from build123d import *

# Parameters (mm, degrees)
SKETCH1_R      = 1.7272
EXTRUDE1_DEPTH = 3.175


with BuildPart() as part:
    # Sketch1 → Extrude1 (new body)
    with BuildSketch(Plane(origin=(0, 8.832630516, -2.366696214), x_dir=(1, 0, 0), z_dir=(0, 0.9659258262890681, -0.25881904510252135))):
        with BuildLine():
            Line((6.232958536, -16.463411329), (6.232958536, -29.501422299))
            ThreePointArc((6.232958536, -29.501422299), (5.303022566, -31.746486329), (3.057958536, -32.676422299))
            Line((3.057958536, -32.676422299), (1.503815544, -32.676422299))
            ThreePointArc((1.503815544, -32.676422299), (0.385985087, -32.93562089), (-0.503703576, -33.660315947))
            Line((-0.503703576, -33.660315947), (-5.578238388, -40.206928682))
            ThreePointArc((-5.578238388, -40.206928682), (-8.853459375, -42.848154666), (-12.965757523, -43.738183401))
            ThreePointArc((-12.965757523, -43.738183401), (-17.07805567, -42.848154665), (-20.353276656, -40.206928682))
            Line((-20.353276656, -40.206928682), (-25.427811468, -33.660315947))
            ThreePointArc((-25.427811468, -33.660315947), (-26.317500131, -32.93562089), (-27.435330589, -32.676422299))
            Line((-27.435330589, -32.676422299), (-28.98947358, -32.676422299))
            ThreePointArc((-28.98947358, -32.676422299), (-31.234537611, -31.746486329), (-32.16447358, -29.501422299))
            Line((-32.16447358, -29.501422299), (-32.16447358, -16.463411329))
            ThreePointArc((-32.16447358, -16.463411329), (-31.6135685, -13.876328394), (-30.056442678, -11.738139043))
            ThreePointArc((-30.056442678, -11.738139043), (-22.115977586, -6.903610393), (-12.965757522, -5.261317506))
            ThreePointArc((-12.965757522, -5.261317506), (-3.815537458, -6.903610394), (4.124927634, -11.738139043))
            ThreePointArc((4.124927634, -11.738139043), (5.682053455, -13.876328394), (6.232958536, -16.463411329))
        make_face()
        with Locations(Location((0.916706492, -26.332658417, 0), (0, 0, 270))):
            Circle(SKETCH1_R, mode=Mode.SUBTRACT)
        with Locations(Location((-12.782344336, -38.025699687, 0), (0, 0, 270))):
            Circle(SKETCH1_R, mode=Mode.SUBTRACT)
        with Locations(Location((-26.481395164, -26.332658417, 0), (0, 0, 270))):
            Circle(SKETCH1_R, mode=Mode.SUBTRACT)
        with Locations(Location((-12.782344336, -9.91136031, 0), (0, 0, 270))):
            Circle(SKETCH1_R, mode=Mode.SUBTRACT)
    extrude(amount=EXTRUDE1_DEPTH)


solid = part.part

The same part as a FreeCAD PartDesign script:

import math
import FreeCAD as App
import Part
import Sketcher
from FreeCAD import Vector
Q = App.Units.Quantity

doc = App.newDocument("Part")
body = doc.addObject("PartDesign::Body", "Body")

# Sketch on an angled plane
sketch1 = doc.addObject("Sketcher::SketchObject", "Sketch")
body.addObject(sketch1)
sketch1.Placement = App.Placement(Vector(0, 8.832631, -2.366696), App.Rotation(Vector(1, 0, 0), Vector(0, -0.258819045, -0.965925826), Vector(0, 0.965925826, -0.258819045), "ZXY"))
sketch1.addGeometry(Part.LineSegment(Vector(6.232959, -29.501422, 0), Vector(6.232959, -16.463411, 0)), False)
sketch1.addGeometry(Part.ArcOfCircle(Part.Circle(Vector(-0.117041, -16.463411, 0), Vector(0, 0, 1), 6.35), math.radians(0), math.radians(48.085059)), False)
sketch1.addGeometry(Part.ArcOfCircle(Part.Circle(Vector(-12.786925, -30.576822, 0), Vector(0, 0, 1), 25.316136), math.radians(48.085059), math.radians(90.404739)), False)
sketch1.addGeometry(Part.ArcOfCircle(Part.Circle(Vector(-13.14459, -30.576822, 0), Vector(0, 0, 1), 25.316136), math.radians(89.595261), math.radians(131.914941)), False)
sketch1.addGeometry(Part.ArcOfCircle(Part.Circle(Vector(-25.814474, -16.463411, 0), Vector(0, 0, 1), 6.35), math.radians(131.914941), math.radians(180)), False)
sketch1.addGeometry(Part.LineSegment(Vector(-32.164474, -16.463411, 0), Vector(-32.164474, -29.501422, 0)), False)
sketch1.addGeometry(Part.ArcOfCircle(Part.Circle(Vector(-28.989474, -29.501422, 0), Vector(0, 0, 1), 3.175), math.radians(180), math.radians(270)), False)
sketch1.addGeometry(Part.LineSegment(Vector(-28.989474, -32.676422, 0), Vector(-27.435331, -32.676422, 0)), False)
sketch1.addGeometry(Part.ArcOfCircle(Part.Circle(Vector(-27.435331, -35.216422, 0), Vector(0, 0, 1), 2.54), math.radians(37.780659), math.radians(90)), False)
sketch1.addGeometry(Part.LineSegment(Vector(-25.427811, -33.660316, 0), Vector(-20.353277, -40.206929, 0)), False)
sketch1.addGeometry(Part.ArcOfCircle(Part.Circle(Vector(-13.14459, -34.619194, 0), Vector(0, 0, 1), 9.120742), math.radians(-142.219341), math.radians(-88.876518)), False)
sketch1.addGeometry(Part.ArcOfCircle(Part.Circle(Vector(-12.786925, -34.619194, 0), Vector(0, 0, 1), 9.120742), math.radians(-91.123482), math.radians(-37.780659)), False)
sketch1.addGeometry(Part.LineSegment(Vector(-5.578238, -40.206929, 0), Vector(-0.503704, -33.660316, 0)), False)
sketch1.addGeometry(Part.ArcOfCircle(Part.Circle(Vector(1.503816, -35.216422, 0), Vector(0, 0, 1), 2.54), math.radians(90), math.radians(142.219341)), False)
sketch1.addGeometry(Part.LineSegment(Vector(1.503816, -32.676422, 0), Vector(3.057959, -32.676422, 0)), False)
sketch1.addGeometry(Part.ArcOfCircle(Part.Circle(Vector(3.057959, -29.501422, 0), Vector(0, 0, 1), 3.175), math.radians(-90), math.radians(0)), False)
sketch1.addGeometry(Part.Circle(Vector(-12.782344, -38.0257, 0), Vector(0, 0, 1), 1.7272), False)
sketch1.addGeometry(Part.Circle(Vector(0.916706, -26.332658, 0), Vector(0, 0, 1), 1.7272), False)
sketch1.addGeometry(Part.Circle(Vector(-26.481395, -26.332658, 0), Vector(0, 0, 1), 1.7272), False)
sketch1.addGeometry(Part.Circle(Vector(-12.782344, -9.91136, 0), Vector(0, 0, 1), 1.7272), False)
sketch1.addConstraint(Sketcher.Constraint("Tangent", 0, 2, 1, 1))
sketch1.addConstraint(Sketcher.Constraint("Tangent", 1, 2, 2, 1))
sketch1.addConstraint(Sketcher.Constraint("Coincident", 2, 2, 3, 1))
sketch1.addConstraint(Sketcher.Constraint("Tangent", 3, 2, 4, 1))
sketch1.addConstraint(Sketcher.Constraint("Tangent", 4, 2, 5, 1))
sketch1.addConstraint(Sketcher.Constraint("Tangent", 5, 2, 6, 1))
sketch1.addConstraint(Sketcher.Constraint("Tangent", 6, 2, 7, 1))
sketch1.addConstraint(Sketcher.Constraint("Tangent", 7, 2, 8, 2))
sketch1.addConstraint(Sketcher.Constraint("Tangent", 8, 1, 9, 1))
sketch1.addConstraint(Sketcher.Constraint("Tangent", 9, 2, 10, 1))
sketch1.addConstraint(Sketcher.Constraint("Coincident", 10, 2, 11, 1))
sketch1.addConstraint(Sketcher.Constraint("Tangent", 11, 2, 12, 1))
sketch1.addConstraint(Sketcher.Constraint("Tangent", 12, 2, 13, 2))
sketch1.addConstraint(Sketcher.Constraint("Tangent", 13, 1, 14, 1))
sketch1.addConstraint(Sketcher.Constraint("Tangent", 14, 2, 15, 1))
sketch1.addConstraint(Sketcher.Constraint("Tangent", 15, 2, 0, 1))
sketch1.addConstraint(Sketcher.Constraint("Vertical", 0))
sketch1.addConstraint(Sketcher.Constraint("Vertical", 5))
sketch1.addConstraint(Sketcher.Constraint("Horizontal", 7))
sketch1.addConstraint(Sketcher.Constraint("Horizontal", 14))
sketch1.addConstraint(Sketcher.Constraint("Equal", 2, 3))
sketch1.addConstraint(Sketcher.Constraint("Equal", 1, 4))
sketch1.addConstraint(Sketcher.Constraint("Equal", 10, 11))
sketch1.addConstraint(Sketcher.Constraint("Equal", 8, 13))
sketch1.addConstraint(Sketcher.Constraint("Equal", 6, 15))
sketch1.addConstraint(Sketcher.Constraint("Equal", 16, 17))
sketch1.addConstraint(Sketcher.Constraint("Equal", 17, 18))
sketch1.addConstraint(Sketcher.Constraint("Equal", 18, 19))
sketch1.addConstraint(Sketcher.Constraint("Horizontal", 2, 3, 3, 3))
sketch1.addConstraint(Sketcher.Constraint("Horizontal", 1, 3, 4, 3))
sketch1.addConstraint(Sketcher.Constraint("Horizontal", 10, 3, 11, 3))
sketch1.addConstraint(Sketcher.Constraint("Horizontal", 8, 3, 13, 3))
sketch1.addConstraint(Sketcher.Constraint("Horizontal", 17, 3, 18, 3))
sketch1.addConstraint(Sketcher.Constraint("Horizontal", 9, 2, 11, 2))
sketch1.addConstraint(Sketcher.Constraint("Vertical", 3, 3, 10, 3))
sketch1.addConstraint(Sketcher.Constraint("Vertical", 2, 3, 11, 3))
sketch1.addConstraint(Sketcher.Constraint("Vertical", 16, 3, 19, 3))
sketch1.addConstraint(Sketcher.Constraint("Radius", 8, Q("0.1 in")))
sketch1.addConstraint(Sketcher.Constraint("Radius", 1, Q("0.25 in")))
sketch1.addConstraint(Sketcher.Constraint("Diameter", 16, Q("0.136 in")))
sketch1.addConstraint(Sketcher.Constraint("Radius", 6, Q("0.125 in")))
sketch1.addConstraint(Sketcher.Constraint("Radius", 2, 25.316136))
sketch1.addConstraint(Sketcher.Constraint("Radius", 10, 9.120742))
sketch1.addConstraint(Sketcher.Constraint("DistanceY", 0, 1, 0, 2, 13.038011))
sketch1.addConstraint(Sketcher.Constraint("DistanceY", 16, 3, -1, 1, 38.0257))
sketch1.addConstraint(Sketcher.Constraint("DistanceY", 3, 3, 6, 3, 1.075399))
sketch1.addConstraint(Sketcher.Constraint("DistanceY", 17, 3, 19, 3, 16.421298))
sketch1.addConstraint(Sketcher.Constraint("DistanceX", 3, 2, 19, 3, 17.274098))
sketch1.addConstraint(Sketcher.Constraint("DistanceX", 7, 1, 7, 2, 1.554143))
sketch1.addConstraint(Sketcher.Constraint("DistanceX", 1, 3, -1, 1, 0.117041))
sketch1.addConstraint(Sketcher.Constraint("DistanceY", 1, 3, -1, 1, 16.463411))
sketch1.addConstraint(Sketcher.Constraint("DistanceX", 3, 3, -1, 1, 13.14459))
sketch1.addConstraint(Sketcher.Constraint("DistanceY", 17, 3, -1, 1, 26.332658))
sketch1.addConstraint(Sketcher.Constraint("DistanceX", 8, 1, -1, 1, 25.427811))
sketch1.addConstraint(Sketcher.Constraint("DistanceX", 17, 3, 13, 3, 0.587109))
sketch1.addConstraint(Sketcher.Constraint("DistanceX", 6, 3, 18, 3, 2.508078))
pad1 = doc.addObject("PartDesign::Pad", "Pad")
body.addObject(pad1)
pad1.Profile = sketch1
pad1.Length = Q("0.125 in")

doc.recompute()
